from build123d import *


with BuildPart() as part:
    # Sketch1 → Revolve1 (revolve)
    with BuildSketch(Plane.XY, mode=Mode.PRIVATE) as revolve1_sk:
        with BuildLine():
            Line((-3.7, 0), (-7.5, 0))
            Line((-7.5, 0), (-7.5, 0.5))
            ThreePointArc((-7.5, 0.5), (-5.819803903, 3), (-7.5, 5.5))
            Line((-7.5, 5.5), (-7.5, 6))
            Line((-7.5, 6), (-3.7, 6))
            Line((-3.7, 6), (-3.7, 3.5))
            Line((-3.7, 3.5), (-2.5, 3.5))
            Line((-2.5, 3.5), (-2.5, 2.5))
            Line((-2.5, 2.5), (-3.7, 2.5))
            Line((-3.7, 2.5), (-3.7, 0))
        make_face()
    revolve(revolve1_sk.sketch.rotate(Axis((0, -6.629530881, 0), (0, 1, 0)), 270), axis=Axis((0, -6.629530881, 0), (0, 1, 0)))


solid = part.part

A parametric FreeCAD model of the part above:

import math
import FreeCAD as App
import Part
import Sketcher

V = App.Vector

doc = App.newDocument("Part")
body = doc.addObject("PartDesign::Body", "Body")

sketch1 = body.newObject("Sketcher::SketchObject", "Sketch")
sketch1.AttachmentSupport = (doc.getObject("XY_Plane"), [""])
sketch1.MapMode = "FlatFace"
sketch1.addGeometry(Part.LineSegment(V(-7.5, 0, 0), V(-3.7, 0, 0)), False)
sketch1.addGeometry(Part.LineSegment(V(-3.7, 0, 0), V(-3.7, 2.5, 0)), False)
sketch1.addGeometry(Part.LineSegment(V(-3.7, 2.5, 0), V(-2.5, 2.5, 0)), False)
sketch1.addGeometry(Part.LineSegment(V(-2.5, 2.5, 0), V(-2.5, 3.5, 0)), False)
sketch1.addGeometry(Part.LineSegment(V(-2.5, 3.5, 0), V(-3.7, 3.5, 0)), False)
sketch1.addGeometry(Part.LineSegment(V(-3.7, 3.5, 0), V(-3.7, 6, 0)), False)
sketch1.addGeometry(Part.LineSegment(V(-3.7, 6, 0), V(-7.5, 6, 0)), False)
sketch1.addGeometry(Part.LineSegment(V(-7.5, 6, 0), V(-7.5, 5.5, 0)), False)
sketch1.addGeometry(Part.ArcOfCircle(Part.Circle(V(-8.5, 3, 0), V(0, 0, 1), 2.7), math.radians(-68), math.radians(68)), False)
sketch1.addGeometry(Part.LineSegment(V(-7.5, 0.5, 0), V(-7.5, 0, 0)), False)
sketch1.addConstraint(Sketcher.Constraint("Coincident", 0, 2, 1, 1))
sketch1.addConstraint(Sketcher.Constraint("Coincident", 1, 2, 2, 1))
sketch1.addConstraint(Sketcher.Constraint("Coincident", 2, 2, 3, 1))
sketch1.addConstraint(Sketcher.Constraint("Coincident", 3, 2, 4, 1))
sketch1.addConstraint(Sketcher.Constraint("Coincident", 4, 2, 5, 1))
sketch1.addConstraint(Sketcher.Constraint("Coincident", 5, 2, 6, 1))
sketch1.addConstraint(Sketcher.Constraint("Coincident", 6, 2, 7, 1))
sketch1.addConstraint(Sketcher.Constraint("Coincident", 7, 2, 8, 2))
sketch1.addConstraint(Sketcher.Constraint("Coincident", 8, 1, 9, 1))
sketch1.addConstraint(Sketcher.Constraint("Coincident", 9, 2, 0, 1))
sketch1.addConstraint(Sketcher.Constraint("Horizontal", 0))
sketch1.addConstraint(Sketcher.Constraint("Vertical", 1))
sketch1.addConstraint(Sketcher.Constraint("Horizontal", 2))
sketch1.addConstraint(Sketcher.Constraint("Vertical", 3))
sketch1.addConstraint(Sketcher.Constraint("Horizontal", 4))
sketch1.addConstraint(Sketcher.Constraint("Vertical", 5))
sketch1.addConstraint(Sketcher.Constraint("Horizontal", 6))
sketch1.addConstraint(Sketcher.Constraint("Vertical", 7))
sketch1.addConstraint(Sketcher.Constraint("Vertical", 9))
sketch1.addConstraint(Sketcher.Constraint("PointOnObject", 0, 2, -1))
sketch1.addConstraint(Sketcher.Constraint("Vertical", 1, 2, 4, 2))
sketch1.addConstraint(Sketcher.Constraint("Vertical", 7, 2, 8, 1))
sketch1.addConstraint(Sketcher.Constraint("Equal", 1, 5))
sketch1.addConstraint(Sketcher.Constraint("Equal", 7, 9))
sketch1.addConstraint(Sketcher.Constraint("Radius", 8, 2.7))
sketch1.addConstraint(Sketcher.Constraint("DistanceY", 3, 1, 3, 2, 1.0))
sketch1.addConstraint(Sketcher.Constraint("DistanceX", 0, 1, 0, 2, 3.8))
sketch1.addConstraint(Sketcher.Constraint("DistanceX", 2, 1, 2, 2, 1.2))
sketch1.addConstraint(Sketcher.Constraint("DistanceY", 1, 1, 1, 2, 2.5))
sketch1.addConstraint(Sketcher.Constraint("DistanceY", 7, 2, 7, 1, 0.5))
sketch1.addConstraint(Sketcher.Constraint("DistanceX", 0, 2, -1, 1, 3.7))
revolution = body.newObject("PartDesign::Revolution", "Revolution")
revolution.Profile = sketch1
revolution.ReferenceAxis = (sketch1, ["V_Axis"])
revolution.Angle = 360

doc.recompute()
